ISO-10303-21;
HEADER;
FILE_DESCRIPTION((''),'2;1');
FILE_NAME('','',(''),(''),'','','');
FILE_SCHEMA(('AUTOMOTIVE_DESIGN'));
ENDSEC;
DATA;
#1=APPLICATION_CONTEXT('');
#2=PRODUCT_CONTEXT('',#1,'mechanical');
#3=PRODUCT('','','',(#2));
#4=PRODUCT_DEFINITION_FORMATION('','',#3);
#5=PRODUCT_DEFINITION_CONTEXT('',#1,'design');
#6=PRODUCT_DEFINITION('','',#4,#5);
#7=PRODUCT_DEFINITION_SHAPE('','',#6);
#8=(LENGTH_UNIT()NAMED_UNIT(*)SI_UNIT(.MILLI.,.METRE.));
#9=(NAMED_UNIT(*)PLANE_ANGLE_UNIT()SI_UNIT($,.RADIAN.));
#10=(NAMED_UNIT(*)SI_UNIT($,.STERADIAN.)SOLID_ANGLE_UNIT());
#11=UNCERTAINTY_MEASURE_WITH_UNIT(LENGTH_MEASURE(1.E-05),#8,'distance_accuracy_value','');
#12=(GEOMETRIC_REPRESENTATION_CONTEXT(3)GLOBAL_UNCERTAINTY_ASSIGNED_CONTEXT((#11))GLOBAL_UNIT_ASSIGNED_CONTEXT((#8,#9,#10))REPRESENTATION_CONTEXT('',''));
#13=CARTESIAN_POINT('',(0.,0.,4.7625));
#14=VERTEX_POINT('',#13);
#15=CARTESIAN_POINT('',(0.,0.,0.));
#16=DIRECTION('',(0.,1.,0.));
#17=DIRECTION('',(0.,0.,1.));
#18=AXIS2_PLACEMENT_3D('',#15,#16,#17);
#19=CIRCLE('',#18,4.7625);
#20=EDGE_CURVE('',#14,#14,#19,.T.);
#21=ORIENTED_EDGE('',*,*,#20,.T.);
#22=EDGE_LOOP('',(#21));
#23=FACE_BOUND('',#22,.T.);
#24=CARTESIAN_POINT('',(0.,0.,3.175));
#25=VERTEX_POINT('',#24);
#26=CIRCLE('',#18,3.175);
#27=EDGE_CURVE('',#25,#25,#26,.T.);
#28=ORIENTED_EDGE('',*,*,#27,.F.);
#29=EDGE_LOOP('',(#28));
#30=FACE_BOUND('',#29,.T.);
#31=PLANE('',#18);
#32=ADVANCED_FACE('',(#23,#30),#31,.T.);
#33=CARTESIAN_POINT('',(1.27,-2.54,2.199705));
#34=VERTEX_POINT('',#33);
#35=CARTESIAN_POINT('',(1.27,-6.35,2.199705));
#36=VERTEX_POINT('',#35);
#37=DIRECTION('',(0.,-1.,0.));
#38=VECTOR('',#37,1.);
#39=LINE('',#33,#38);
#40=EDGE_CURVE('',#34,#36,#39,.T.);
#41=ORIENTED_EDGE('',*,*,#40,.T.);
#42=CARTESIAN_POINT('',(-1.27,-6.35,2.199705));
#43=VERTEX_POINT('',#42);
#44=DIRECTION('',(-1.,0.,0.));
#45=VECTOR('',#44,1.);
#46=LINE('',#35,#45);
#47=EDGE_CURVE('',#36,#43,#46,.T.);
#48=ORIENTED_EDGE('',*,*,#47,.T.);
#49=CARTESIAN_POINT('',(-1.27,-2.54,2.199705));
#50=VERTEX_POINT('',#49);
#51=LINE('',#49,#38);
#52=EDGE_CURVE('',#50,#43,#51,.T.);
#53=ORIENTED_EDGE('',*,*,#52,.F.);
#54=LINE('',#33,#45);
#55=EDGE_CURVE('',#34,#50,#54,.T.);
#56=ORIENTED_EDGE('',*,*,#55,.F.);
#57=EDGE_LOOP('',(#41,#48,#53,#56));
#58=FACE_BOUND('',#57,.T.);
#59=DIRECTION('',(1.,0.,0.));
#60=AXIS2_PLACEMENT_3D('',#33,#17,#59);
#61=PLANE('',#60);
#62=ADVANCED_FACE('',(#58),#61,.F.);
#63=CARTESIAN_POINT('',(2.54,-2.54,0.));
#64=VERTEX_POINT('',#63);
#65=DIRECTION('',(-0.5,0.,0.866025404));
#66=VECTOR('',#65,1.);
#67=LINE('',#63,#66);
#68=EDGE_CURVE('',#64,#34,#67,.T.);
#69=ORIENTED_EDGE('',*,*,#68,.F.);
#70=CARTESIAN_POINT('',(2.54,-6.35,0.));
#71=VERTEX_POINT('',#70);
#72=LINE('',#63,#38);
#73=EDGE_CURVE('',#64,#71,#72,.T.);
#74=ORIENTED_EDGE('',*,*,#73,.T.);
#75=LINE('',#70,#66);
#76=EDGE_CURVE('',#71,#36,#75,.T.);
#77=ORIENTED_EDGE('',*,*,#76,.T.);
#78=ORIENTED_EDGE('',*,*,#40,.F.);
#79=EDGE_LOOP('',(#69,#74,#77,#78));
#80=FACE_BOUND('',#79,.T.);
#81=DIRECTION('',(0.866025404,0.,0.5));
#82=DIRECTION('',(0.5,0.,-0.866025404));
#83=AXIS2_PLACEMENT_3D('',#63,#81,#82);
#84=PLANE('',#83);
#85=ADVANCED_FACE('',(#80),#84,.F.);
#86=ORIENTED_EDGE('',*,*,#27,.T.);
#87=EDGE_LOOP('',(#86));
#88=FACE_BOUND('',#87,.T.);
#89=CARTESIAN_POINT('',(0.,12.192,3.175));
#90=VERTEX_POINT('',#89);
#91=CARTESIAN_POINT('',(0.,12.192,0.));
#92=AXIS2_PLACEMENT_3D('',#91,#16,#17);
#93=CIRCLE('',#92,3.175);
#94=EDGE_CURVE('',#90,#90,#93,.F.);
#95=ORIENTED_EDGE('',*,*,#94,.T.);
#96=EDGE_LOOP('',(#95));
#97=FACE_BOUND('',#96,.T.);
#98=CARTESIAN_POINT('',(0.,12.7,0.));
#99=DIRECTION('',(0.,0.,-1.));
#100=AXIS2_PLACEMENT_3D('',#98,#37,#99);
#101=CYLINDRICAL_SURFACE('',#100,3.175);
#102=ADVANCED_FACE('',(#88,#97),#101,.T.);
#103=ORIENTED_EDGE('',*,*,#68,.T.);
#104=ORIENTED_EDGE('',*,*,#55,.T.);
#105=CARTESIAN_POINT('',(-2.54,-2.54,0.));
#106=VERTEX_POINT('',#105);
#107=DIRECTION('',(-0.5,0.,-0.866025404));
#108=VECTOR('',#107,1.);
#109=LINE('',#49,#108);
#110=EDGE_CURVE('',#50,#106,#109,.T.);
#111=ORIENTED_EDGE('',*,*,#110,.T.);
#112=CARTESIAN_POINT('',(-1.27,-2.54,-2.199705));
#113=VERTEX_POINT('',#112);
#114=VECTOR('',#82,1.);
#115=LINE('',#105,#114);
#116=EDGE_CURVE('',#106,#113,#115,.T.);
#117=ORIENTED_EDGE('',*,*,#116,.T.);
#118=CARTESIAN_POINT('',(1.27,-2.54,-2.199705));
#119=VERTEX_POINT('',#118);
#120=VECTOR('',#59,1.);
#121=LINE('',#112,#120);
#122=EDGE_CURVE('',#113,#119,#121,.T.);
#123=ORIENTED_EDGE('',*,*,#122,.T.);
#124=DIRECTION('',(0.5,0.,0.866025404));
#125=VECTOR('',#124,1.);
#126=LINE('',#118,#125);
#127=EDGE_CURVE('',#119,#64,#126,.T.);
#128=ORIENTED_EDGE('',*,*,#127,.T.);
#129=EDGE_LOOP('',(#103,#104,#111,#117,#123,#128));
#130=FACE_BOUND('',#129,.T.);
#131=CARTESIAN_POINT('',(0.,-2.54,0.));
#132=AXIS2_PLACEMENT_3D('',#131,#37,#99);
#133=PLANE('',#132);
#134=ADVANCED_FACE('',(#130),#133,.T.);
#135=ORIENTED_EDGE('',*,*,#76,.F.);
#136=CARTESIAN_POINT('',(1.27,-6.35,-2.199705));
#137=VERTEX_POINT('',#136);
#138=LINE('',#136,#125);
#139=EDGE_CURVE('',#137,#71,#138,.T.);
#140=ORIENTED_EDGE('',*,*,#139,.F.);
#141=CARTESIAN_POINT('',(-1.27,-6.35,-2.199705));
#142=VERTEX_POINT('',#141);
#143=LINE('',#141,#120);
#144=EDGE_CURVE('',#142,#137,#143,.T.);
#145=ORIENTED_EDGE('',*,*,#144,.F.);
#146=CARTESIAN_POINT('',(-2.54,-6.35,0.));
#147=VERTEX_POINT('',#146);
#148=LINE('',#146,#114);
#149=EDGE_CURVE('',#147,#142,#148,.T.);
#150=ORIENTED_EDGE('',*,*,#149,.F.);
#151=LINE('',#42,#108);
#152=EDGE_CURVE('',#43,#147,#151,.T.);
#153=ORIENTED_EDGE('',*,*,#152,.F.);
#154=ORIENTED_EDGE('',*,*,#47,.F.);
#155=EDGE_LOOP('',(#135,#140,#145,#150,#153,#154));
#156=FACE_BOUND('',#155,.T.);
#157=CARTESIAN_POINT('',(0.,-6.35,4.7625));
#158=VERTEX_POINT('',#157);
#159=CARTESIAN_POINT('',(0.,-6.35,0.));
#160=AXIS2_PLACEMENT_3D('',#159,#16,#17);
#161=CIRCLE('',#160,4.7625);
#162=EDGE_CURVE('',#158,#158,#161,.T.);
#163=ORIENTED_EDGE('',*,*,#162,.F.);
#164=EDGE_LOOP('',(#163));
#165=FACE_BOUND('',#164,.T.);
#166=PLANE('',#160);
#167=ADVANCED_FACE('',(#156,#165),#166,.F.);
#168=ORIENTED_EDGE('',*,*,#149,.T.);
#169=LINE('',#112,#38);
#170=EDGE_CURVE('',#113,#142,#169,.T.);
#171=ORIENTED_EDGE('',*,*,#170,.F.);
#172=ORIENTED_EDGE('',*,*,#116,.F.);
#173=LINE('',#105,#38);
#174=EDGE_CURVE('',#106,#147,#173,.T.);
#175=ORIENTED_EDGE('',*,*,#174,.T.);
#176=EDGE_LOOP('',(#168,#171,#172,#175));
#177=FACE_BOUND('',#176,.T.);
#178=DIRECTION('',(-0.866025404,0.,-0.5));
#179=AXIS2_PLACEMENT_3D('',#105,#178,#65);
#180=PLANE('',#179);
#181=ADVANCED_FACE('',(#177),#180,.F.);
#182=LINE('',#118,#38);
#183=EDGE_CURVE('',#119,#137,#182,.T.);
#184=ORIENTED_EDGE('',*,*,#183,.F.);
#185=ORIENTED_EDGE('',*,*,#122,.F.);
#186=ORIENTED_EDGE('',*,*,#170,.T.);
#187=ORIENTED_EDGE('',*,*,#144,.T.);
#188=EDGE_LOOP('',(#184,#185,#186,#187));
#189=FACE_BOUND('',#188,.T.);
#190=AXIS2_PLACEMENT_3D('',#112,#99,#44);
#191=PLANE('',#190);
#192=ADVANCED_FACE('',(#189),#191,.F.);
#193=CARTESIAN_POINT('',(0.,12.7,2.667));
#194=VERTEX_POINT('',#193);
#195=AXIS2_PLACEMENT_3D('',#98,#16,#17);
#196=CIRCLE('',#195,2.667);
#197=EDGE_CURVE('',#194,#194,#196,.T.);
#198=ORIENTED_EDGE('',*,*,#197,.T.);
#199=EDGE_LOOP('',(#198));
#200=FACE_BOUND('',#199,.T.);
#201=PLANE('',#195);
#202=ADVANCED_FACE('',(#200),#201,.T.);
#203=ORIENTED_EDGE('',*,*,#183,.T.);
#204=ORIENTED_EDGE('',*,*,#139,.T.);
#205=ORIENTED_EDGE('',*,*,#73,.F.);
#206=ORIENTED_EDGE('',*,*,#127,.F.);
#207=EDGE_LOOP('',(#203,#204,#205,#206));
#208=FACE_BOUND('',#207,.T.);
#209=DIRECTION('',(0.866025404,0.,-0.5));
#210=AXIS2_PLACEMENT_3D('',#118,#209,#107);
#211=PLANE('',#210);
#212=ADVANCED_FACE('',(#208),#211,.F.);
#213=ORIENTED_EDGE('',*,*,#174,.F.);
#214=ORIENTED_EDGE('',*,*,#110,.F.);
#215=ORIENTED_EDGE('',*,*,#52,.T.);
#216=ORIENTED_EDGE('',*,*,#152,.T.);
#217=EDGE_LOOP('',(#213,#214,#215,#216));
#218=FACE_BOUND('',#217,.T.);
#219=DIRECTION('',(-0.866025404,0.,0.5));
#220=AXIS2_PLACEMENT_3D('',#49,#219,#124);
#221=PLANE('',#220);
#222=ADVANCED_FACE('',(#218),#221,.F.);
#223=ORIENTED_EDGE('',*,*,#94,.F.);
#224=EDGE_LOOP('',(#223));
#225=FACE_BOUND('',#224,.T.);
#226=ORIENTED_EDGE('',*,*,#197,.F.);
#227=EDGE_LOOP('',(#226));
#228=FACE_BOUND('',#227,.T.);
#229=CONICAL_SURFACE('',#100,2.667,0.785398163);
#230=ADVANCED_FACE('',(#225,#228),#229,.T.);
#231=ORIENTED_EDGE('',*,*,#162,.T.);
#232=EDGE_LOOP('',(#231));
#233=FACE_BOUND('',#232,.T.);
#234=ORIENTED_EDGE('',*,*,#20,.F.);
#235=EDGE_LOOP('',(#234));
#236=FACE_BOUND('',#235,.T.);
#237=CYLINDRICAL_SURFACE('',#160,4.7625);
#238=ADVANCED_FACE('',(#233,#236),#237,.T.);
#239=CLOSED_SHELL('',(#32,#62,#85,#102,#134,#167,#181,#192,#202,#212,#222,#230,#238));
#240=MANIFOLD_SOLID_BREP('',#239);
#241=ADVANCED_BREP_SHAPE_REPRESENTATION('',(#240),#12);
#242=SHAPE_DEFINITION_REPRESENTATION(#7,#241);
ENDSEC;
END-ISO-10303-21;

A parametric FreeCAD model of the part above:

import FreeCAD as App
import Part
import Sketcher
Q = App.Units.Quantity


def edges_at(feature, points):
    """Names of the edges that pass closest to the given points."""
    edges = feature.Shape.Edges
    near = lambda p: min(range(len(edges)), key=lambda i: edges[i].distToShape(Part.Vertex(*p))[0])
    return sorted({f"Edge{near(p) + 1}" for p in points})


def add_polygon(sketch, points):
    """Adds a closed chain of lines whose ends are joined by coincident constraints."""
    first, n = sketch.GeometryCount, len(points)
    for a, b in zip(points, points[1:] + points[:1]):
        sketch.addGeometry(Part.LineSegment(App.Vector(*a, 0), App.Vector(*b, 0)), False)
    for i in range(n):
        sketch.addConstraint(Sketcher.Constraint("Coincident", first + i, 2, first + (i + 1) % n, 1))

doc = App.newDocument("Part")
body = doc.addObject("PartDesign::Body", "Body")

# Sketch on XZ plane
sketch1 = body.newObject("Sketcher::SketchObject", "Sketch")
sketch1.AttachmentSupport = (doc.getObject("XZ_Plane"), [""])
sketch1.MapMode = "FlatFace"
sketch1.addGeometry(Part.Circle(App.Vector(0, 0, 0), App.Vector(0, 0, 1), 4.8), False)
sketch1.addConstraint([
    Sketcher.Constraint("Coincident", 0, 3, -1, 1),
    Sketcher.Constraint("Diameter", 0, Q("0.375 in")),
])
pad1 = body.newObject("PartDesign::Pad", "Pad")
pad1.Profile = sketch1
pad1.Length = Q("0.25 in")

# Sketch on XZ plane
sketch2 = body.newObject("Sketcher::SketchObject", "Sketch001")
sketch2.AttachmentSupport = (doc.getObject("XZ_Plane"), [""])
sketch2.MapMode = "FlatFace"
sketch2.addGeometry(Part.Circle(App.Vector(0, 0, 0), App.Vector(0, 0, 1), 3.2), False)
sketch2.addConstraint([
    Sketcher.Constraint("Coincident", 0, 3, -1, 1),
    Sketcher.Constraint("Diameter", 0, Q("0.25 in")),
])
pad2 = body.newObject("PartDesign::Pad", "Pad001")
pad2.Profile = sketch2
pad2.Length = Q("0.5 in")
pad2.Reversed = True
doc.recompute()

chamfer = body.newObject("PartDesign::Chamfer", "Chamfer")
chamfer.Base = (pad2, edges_at(pad2, [(0, 12.7, -3.175)]))
chamfer.Size = Q("0.02 in")

# Sketch on XZ plane
sketch3 = body.newObject("Sketcher::SketchObject", "Sketch002")
sketch3.AttachmentSupport = (doc.getObject("XZ_Plane"), [""])
sketch3.MapMode = "FlatFace"
sketch3.AttachmentOffset = App.Placement(App.Vector(0, 0, 0.25 * 25.4), App.Rotation())
add_polygon(sketch3, [(1.3, -2.2), (2.5, 0), (1.3, 2.2), (-1.3, 2.2), (-2.5, 0), (-1.3, -2.2)])  # lines 0-5
sketch3.addConstraint([
    Sketcher.Constraint("Horizontal", 2),
    Sketcher.Constraint("Horizontal", 5),
    Sketcher.Constraint("Symmetric", 0, 2, 3, 2, -1, 1),
    Sketcher.Constraint("Symmetric", 1, 2, 4, 2, -1, 1),
    Sketcher.Constraint("PointOnObject", 0, 2, -1),
    Sketcher.Constraint("Parallel", 0, 3),
    Sketcher.Constraint("Vertical", 2, 2, 4, 2),
    Sketcher.Constraint("DistanceX", 2, 2, 2, 1, Q("0.1 in")),
    Sketcher.Constraint("Angle", 0, Q("60 deg")),
    Sketcher.Constraint("Distance", 0, Q("0.1 in")),
])
pocket1 = body.newObject("PartDesign::Pocket", "Pocket")
pocket1.Profile = sketch3
pocket1.Length = Q("0.15 in")

doc.recompute()
